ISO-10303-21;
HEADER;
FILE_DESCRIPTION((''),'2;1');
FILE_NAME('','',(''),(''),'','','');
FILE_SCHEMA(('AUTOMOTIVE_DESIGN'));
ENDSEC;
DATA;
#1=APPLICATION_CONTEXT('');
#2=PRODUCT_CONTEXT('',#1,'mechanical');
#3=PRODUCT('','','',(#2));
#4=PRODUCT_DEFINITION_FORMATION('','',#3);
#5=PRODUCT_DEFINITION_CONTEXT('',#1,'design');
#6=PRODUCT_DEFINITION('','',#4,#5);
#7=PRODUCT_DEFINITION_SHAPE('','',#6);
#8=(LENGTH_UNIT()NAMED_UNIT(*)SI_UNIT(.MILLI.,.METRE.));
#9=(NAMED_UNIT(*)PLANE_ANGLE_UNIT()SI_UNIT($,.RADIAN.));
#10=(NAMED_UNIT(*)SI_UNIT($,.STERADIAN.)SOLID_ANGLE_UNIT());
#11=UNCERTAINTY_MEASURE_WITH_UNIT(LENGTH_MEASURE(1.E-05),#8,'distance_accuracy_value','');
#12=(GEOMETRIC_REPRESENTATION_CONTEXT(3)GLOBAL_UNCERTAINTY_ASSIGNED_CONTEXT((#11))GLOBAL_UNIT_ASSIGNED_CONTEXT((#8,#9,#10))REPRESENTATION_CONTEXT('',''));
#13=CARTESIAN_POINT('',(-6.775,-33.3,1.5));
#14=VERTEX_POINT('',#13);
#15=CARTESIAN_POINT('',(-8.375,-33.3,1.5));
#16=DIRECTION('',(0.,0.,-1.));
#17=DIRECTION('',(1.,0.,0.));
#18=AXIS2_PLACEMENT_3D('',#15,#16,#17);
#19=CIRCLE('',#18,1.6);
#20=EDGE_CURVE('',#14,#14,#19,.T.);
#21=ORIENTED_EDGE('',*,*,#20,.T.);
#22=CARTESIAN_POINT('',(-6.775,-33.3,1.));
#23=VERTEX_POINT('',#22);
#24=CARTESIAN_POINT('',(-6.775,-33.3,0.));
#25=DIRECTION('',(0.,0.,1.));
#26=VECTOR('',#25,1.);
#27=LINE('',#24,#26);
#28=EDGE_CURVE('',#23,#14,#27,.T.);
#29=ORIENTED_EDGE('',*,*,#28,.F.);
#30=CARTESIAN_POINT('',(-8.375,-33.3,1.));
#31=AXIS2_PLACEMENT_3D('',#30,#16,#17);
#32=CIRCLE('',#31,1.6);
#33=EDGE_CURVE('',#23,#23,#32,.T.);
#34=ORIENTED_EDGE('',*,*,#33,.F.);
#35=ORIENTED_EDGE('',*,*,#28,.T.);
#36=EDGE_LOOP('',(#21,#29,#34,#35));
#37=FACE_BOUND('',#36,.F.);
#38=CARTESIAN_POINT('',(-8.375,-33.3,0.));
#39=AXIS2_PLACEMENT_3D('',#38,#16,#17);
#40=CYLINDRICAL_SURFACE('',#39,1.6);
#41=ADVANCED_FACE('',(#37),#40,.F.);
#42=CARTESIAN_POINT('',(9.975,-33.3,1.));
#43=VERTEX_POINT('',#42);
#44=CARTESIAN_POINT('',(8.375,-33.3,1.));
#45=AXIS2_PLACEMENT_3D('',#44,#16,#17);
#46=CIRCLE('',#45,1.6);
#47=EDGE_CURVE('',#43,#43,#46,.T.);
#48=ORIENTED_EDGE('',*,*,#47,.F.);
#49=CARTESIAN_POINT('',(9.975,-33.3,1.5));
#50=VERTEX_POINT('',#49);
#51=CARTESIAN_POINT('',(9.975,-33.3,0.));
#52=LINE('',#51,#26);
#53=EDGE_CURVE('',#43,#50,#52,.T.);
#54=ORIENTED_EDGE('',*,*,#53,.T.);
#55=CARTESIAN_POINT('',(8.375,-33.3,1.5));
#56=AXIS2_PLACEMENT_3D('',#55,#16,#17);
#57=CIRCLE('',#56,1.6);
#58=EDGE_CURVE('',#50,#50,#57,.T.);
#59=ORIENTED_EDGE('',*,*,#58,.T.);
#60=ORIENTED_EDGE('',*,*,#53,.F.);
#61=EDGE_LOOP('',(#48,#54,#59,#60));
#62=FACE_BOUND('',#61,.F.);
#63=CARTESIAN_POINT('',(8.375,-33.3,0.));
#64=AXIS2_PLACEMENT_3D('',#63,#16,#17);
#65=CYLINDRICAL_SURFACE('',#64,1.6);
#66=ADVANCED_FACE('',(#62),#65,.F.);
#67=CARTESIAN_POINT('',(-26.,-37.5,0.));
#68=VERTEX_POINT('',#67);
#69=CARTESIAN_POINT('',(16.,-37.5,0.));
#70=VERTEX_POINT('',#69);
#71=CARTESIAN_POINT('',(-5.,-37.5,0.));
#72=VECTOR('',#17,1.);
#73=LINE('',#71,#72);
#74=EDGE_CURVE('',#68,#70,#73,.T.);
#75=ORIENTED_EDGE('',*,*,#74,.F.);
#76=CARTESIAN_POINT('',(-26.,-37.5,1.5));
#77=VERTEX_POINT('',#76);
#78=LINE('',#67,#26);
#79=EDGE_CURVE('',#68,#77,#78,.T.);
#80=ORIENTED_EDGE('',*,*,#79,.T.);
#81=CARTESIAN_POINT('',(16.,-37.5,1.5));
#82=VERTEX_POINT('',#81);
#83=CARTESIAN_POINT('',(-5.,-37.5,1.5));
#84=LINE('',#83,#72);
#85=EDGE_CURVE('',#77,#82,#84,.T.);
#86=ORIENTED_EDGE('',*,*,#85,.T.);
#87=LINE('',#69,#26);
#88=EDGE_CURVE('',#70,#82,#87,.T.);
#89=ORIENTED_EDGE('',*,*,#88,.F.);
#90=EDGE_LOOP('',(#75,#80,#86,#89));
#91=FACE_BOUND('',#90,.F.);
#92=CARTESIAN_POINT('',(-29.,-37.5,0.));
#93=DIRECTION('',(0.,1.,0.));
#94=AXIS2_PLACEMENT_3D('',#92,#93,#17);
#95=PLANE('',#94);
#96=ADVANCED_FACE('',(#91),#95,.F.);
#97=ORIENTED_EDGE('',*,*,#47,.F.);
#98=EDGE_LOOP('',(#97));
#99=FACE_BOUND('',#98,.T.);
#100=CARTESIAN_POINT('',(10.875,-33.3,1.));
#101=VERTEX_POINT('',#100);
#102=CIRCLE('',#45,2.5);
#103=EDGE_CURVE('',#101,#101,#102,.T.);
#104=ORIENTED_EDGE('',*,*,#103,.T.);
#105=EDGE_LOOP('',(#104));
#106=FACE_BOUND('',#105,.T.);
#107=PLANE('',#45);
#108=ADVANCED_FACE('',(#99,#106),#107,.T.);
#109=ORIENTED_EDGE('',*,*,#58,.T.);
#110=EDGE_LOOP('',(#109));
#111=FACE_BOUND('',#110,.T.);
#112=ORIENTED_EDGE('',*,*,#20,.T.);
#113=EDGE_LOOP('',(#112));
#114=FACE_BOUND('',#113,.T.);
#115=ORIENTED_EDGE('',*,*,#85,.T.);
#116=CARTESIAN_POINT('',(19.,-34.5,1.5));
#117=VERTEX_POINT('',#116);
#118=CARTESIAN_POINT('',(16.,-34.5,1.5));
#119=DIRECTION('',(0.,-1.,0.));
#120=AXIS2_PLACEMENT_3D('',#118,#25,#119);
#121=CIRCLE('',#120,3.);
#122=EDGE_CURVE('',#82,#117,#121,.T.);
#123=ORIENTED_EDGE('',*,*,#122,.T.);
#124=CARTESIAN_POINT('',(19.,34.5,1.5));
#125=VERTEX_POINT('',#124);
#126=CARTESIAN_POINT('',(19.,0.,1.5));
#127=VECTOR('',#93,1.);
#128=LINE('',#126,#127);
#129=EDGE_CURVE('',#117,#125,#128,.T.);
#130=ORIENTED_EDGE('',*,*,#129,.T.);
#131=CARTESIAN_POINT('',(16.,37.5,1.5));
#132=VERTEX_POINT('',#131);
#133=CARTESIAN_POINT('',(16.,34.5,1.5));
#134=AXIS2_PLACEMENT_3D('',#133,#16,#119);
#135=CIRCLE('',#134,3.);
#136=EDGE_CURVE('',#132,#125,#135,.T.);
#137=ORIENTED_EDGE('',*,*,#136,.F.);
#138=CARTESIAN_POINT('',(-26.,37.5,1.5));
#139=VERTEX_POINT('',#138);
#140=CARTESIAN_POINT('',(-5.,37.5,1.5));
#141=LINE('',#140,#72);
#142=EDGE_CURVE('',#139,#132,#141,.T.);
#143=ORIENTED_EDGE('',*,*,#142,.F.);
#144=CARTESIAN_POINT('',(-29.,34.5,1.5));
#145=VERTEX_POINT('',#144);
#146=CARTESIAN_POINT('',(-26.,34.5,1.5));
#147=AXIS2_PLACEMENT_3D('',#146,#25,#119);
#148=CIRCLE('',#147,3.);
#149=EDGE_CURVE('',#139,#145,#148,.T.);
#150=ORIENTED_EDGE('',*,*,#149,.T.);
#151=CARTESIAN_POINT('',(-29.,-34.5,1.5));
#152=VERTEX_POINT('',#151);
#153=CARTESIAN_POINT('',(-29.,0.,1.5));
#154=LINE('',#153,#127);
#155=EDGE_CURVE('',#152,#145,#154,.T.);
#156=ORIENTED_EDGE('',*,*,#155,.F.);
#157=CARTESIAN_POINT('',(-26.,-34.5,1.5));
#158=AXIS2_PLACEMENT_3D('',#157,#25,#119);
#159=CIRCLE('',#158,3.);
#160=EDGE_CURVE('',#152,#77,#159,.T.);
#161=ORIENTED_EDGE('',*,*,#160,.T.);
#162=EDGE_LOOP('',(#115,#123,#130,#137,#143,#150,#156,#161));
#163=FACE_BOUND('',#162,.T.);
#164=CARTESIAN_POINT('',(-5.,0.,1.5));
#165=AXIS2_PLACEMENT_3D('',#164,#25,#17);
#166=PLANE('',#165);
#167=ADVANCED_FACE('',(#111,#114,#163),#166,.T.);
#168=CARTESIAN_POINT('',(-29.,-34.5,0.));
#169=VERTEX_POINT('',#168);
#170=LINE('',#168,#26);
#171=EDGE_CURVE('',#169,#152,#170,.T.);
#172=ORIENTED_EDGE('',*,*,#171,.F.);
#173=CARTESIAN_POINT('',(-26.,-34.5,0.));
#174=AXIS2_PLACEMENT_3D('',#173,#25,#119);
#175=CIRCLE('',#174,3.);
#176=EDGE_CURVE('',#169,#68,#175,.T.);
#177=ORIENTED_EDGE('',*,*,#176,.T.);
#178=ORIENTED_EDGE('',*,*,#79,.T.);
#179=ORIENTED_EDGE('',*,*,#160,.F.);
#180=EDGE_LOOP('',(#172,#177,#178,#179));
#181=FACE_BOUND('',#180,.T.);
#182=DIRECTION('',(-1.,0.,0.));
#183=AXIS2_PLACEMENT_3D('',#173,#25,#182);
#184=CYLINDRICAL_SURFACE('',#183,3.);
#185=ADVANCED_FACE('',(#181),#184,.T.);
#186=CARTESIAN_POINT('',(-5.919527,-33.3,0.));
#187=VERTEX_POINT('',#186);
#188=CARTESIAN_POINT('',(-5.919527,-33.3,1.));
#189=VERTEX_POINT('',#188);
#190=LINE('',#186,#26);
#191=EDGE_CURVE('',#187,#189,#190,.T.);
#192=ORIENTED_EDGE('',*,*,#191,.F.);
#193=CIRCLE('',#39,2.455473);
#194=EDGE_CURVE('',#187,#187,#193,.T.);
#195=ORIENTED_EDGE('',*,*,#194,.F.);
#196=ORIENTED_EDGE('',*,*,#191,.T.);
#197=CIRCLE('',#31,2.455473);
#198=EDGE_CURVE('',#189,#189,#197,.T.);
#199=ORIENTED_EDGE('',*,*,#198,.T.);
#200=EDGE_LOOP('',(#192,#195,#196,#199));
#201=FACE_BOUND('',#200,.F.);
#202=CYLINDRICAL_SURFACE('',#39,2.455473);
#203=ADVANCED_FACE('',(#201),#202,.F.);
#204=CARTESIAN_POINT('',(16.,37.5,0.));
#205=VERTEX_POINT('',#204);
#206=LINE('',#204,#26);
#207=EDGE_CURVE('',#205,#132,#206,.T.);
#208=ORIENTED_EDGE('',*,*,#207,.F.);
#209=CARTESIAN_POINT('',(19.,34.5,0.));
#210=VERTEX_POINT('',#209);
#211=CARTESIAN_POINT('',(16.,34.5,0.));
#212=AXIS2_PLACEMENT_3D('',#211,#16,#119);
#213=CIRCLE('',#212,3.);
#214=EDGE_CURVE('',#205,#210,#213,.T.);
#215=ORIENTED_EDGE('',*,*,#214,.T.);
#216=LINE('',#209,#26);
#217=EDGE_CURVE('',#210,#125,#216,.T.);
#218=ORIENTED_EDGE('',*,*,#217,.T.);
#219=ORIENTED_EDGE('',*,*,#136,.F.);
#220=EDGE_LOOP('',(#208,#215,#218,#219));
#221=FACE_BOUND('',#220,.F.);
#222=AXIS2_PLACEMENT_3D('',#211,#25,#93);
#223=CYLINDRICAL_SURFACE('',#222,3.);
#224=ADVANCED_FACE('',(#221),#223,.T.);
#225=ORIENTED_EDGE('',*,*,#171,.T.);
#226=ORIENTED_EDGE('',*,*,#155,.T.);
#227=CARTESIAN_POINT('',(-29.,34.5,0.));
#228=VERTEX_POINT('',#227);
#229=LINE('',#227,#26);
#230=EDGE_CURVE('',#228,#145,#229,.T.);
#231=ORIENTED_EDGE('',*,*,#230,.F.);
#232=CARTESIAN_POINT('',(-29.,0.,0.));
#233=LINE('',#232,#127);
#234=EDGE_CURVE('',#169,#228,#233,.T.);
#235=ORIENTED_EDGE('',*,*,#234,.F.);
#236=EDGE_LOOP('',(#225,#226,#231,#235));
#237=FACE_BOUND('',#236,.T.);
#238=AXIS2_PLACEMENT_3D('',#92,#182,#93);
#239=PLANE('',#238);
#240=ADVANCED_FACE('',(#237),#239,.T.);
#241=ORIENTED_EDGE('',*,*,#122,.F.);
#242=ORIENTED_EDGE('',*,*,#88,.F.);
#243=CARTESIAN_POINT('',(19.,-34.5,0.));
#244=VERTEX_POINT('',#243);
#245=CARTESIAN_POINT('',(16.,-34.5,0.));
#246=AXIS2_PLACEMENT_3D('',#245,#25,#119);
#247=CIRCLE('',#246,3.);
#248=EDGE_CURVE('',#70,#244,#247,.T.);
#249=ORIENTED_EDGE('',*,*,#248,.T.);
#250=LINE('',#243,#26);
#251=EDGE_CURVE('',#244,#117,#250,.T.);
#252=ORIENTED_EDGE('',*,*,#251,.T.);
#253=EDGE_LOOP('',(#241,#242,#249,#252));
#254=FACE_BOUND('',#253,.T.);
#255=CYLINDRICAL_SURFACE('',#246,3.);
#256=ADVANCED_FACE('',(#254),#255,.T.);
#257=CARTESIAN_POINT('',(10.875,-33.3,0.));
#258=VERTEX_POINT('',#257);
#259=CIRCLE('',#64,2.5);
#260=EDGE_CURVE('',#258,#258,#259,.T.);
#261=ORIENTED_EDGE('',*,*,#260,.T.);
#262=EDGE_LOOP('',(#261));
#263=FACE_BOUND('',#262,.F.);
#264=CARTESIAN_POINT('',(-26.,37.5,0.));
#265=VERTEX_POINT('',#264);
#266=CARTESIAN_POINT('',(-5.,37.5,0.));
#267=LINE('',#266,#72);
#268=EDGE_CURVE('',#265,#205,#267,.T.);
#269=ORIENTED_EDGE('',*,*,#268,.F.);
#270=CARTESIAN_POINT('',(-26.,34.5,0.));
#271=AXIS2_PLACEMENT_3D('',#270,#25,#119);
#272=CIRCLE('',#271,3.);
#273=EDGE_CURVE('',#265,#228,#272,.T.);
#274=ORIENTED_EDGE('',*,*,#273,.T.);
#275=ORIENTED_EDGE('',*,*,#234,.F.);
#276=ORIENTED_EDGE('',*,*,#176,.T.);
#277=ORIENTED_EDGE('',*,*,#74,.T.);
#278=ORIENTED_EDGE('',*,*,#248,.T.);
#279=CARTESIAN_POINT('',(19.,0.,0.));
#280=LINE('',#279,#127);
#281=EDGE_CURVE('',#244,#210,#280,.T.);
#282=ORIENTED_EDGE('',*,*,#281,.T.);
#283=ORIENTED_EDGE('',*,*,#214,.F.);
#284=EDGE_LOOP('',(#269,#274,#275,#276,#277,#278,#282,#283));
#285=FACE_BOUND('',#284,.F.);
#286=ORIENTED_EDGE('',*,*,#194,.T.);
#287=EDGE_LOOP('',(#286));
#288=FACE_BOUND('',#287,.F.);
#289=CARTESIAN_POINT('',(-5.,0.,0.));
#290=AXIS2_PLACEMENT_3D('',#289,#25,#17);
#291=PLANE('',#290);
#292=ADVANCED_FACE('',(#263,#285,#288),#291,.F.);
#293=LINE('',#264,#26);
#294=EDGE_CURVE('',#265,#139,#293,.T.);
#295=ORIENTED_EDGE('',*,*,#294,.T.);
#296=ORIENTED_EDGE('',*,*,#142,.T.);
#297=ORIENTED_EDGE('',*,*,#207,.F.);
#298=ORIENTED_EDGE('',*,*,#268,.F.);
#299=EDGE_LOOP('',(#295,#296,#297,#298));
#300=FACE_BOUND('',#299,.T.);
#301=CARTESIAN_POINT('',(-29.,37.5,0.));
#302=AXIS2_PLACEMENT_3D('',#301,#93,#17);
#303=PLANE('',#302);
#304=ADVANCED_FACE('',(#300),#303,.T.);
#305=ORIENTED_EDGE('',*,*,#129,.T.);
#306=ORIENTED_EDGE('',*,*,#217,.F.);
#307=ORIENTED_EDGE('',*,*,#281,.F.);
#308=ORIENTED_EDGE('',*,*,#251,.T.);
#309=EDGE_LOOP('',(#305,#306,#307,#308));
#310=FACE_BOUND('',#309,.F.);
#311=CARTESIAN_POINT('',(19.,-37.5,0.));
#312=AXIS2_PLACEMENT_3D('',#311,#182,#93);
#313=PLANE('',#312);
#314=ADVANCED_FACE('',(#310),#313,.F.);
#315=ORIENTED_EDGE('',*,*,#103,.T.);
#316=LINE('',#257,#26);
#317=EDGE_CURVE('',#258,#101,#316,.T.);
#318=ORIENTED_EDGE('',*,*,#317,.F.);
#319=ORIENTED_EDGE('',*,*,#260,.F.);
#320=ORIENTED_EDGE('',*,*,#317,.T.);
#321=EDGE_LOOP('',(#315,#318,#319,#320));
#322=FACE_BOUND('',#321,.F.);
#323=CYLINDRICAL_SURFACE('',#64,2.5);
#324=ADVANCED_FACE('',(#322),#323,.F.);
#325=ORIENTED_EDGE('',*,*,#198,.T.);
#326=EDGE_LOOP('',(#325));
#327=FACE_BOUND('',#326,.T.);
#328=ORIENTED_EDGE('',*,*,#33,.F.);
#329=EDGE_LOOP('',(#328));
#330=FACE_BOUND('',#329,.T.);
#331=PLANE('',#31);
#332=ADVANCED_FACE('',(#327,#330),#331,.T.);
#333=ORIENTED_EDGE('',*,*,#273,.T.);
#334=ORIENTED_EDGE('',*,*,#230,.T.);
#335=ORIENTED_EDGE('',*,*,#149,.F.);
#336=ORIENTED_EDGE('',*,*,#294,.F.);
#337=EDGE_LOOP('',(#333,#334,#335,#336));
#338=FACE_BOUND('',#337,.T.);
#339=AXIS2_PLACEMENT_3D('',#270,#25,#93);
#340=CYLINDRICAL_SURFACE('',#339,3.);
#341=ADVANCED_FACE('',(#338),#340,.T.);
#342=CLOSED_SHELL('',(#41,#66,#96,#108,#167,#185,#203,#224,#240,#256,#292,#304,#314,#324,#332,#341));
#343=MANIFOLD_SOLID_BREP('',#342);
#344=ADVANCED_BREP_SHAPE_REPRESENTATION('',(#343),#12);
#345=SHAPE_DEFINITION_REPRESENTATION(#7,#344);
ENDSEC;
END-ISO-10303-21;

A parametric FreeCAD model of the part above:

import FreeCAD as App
import Part
import Sketcher

V = App.Vector


def edges_at(feature, points):
    """Names of the edges that pass closest to the given points."""
    edges = feature.Shape.Edges
    near = lambda p: min(range(len(edges)), key=lambda i: edges[i].distToShape(Part.Vertex(*p))[0])
    return sorted({f"Edge{near(p) + 1}" for p in points})


def add_polygon(sketch, points):
    """Adds a closed chain of lines whose ends are joined by coincident constraints."""
    first, n = sketch.GeometryCount, len(points)
    for a, b in zip(points, points[1:] + points[:1]):
        sketch.addGeometry(Part.LineSegment(App.Vector(*a, 0), App.Vector(*b, 0)), False)
    for i in range(n):
        sketch.addConstraint(Sketcher.Constraint("Coincident", first + i, 2, first + (i + 1) % n, 1))

doc = App.newDocument("Part")
body = doc.addObject("PartDesign::Body", "Body")

# Sketch on XY plane
sketch1 = doc.addObject("Sketcher::SketchObject", "Sketch")
body.addObject(sketch1)
sketch1.AttachmentSupport = (doc.XY_Plane, [""])
sketch1.MapMode = "FlatFace"
add_polygon(sketch1, [(-29, 38), (-29, -38), (19, -38), (19, 38)])  # lines 0-3
sketch1.addConstraint([
    Sketcher.Constraint("Vertical", 0),
    Sketcher.Constraint("Horizontal", 1),
    Sketcher.Constraint("Vertical", 2),
    Sketcher.Constraint("Horizontal", 3),
    Sketcher.Constraint("DistanceX", 1, 1, 1, 2, 48.0),
    Sketcher.Constraint("DistanceY", 0, 2, 0, 1, 75.0),
    Sketcher.Constraint("DistanceX", 0, 2, -1, 1, 29.0),
    Sketcher.Constraint("DistanceY", 0, 2, -1, 1, 37.5),
])
pad1 = doc.addObject("PartDesign::Pad", "Pad")
body.addObject(pad1)
pad1.Profile = sketch1
pad1.Length = 1.5
doc.recompute()

fillet = doc.addObject("PartDesign::Fillet", "Fillet")
body.addObject(fillet)
fillet.Base = (pad1, edges_at(pad1, [(-29, -37.5, 0.75)]))
fillet.Radius = 3
doc.recompute()

fillet2 = doc.addObject("PartDesign::Fillet", "Fillet001")
body.addObject(fillet2)
fillet2.Base = (fillet, edges_at(fillet, [(19, -37.5, 0.75), (19, 37.5, 0.75)]))
fillet2.Radius = 3
doc.recompute()

fillet3 = doc.addObject("PartDesign::Fillet", "Fillet002")
body.addObject(fillet3)
fillet3.Base = (fillet2, edges_at(fillet2, [(-29, 37.5, 0.75)]))
fillet3.Radius = 3

# Sketch on XY plane
sketch2 = doc.addObject("Sketcher::SketchObject", "Sketch001")
body.addObject(sketch2)
sketch2.AttachmentSupport = (doc.XY_Plane, [""])
sketch2.MapMode = "FlatFace"
sketch2.addGeometry([
    Part.Circle(V(-8.4, -33.3, 0), V(0, 0, 1), 1.6),
    Part.Circle(V(8.4, -33.3, 0), V(0, 0, 1), 1.6),
], False)
sketch2.addConstraint([
    Sketcher.Constraint("Equal", 0, 1),
    Sketcher.Constraint("Symmetric", 0, 3, 1, 3, -2),
    Sketcher.Constraint("Diameter", 0, 3.2),
    Sketcher.Constraint("DistanceY", 0, 3, -1, 1, 33.3),
    Sketcher.Constraint("DistanceX", 0, 3, 1, 3, 16.75),
])
pocket1 = doc.addObject("PartDesign::Pocket", "Pocket")
body.addObject(pocket1)
pocket1.Profile = sketch2
pocket1.Type = "ThroughAll"
pocket1.Reversed = True

# Sketch on XY plane
sketch3 = doc.addObject("Sketcher::SketchObject", "Sketch002")
body.addObject(sketch3)
sketch3.AttachmentSupport = (doc.XY_Plane, [""])
sketch3.MapMode = "FlatFace"
sketch3.addGeometry([
    Part.Circle(V(-8.4, -33.3, 0), V(0, 0, 1), 2.5),
    Part.Circle(V(8.4, -33.3, 0), V(0, 0, 1), 2.5),
], False)
sketch3.addConstraint([
    Sketcher.Constraint("Symmetric", 0, 3, 1, 3, -2),
    Sketcher.Constraint("Diameter", 1, 5.0),
    Sketcher.Constraint("DistanceY", 0, 3, -1, 1, 33.3),
    Sketcher.Constraint("DistanceX", 0, 3, 1, 3, 16.75),
    Sketcher.Constraint("Diameter", 0, 4.910946),
])
pocket2 = doc.addObject("PartDesign::Pocket", "Pocket001")
body.addObject(pocket2)
pocket2.Profile = sketch3
pocket2.Length = 1
pocket2.Reversed = True

doc.recompute()
